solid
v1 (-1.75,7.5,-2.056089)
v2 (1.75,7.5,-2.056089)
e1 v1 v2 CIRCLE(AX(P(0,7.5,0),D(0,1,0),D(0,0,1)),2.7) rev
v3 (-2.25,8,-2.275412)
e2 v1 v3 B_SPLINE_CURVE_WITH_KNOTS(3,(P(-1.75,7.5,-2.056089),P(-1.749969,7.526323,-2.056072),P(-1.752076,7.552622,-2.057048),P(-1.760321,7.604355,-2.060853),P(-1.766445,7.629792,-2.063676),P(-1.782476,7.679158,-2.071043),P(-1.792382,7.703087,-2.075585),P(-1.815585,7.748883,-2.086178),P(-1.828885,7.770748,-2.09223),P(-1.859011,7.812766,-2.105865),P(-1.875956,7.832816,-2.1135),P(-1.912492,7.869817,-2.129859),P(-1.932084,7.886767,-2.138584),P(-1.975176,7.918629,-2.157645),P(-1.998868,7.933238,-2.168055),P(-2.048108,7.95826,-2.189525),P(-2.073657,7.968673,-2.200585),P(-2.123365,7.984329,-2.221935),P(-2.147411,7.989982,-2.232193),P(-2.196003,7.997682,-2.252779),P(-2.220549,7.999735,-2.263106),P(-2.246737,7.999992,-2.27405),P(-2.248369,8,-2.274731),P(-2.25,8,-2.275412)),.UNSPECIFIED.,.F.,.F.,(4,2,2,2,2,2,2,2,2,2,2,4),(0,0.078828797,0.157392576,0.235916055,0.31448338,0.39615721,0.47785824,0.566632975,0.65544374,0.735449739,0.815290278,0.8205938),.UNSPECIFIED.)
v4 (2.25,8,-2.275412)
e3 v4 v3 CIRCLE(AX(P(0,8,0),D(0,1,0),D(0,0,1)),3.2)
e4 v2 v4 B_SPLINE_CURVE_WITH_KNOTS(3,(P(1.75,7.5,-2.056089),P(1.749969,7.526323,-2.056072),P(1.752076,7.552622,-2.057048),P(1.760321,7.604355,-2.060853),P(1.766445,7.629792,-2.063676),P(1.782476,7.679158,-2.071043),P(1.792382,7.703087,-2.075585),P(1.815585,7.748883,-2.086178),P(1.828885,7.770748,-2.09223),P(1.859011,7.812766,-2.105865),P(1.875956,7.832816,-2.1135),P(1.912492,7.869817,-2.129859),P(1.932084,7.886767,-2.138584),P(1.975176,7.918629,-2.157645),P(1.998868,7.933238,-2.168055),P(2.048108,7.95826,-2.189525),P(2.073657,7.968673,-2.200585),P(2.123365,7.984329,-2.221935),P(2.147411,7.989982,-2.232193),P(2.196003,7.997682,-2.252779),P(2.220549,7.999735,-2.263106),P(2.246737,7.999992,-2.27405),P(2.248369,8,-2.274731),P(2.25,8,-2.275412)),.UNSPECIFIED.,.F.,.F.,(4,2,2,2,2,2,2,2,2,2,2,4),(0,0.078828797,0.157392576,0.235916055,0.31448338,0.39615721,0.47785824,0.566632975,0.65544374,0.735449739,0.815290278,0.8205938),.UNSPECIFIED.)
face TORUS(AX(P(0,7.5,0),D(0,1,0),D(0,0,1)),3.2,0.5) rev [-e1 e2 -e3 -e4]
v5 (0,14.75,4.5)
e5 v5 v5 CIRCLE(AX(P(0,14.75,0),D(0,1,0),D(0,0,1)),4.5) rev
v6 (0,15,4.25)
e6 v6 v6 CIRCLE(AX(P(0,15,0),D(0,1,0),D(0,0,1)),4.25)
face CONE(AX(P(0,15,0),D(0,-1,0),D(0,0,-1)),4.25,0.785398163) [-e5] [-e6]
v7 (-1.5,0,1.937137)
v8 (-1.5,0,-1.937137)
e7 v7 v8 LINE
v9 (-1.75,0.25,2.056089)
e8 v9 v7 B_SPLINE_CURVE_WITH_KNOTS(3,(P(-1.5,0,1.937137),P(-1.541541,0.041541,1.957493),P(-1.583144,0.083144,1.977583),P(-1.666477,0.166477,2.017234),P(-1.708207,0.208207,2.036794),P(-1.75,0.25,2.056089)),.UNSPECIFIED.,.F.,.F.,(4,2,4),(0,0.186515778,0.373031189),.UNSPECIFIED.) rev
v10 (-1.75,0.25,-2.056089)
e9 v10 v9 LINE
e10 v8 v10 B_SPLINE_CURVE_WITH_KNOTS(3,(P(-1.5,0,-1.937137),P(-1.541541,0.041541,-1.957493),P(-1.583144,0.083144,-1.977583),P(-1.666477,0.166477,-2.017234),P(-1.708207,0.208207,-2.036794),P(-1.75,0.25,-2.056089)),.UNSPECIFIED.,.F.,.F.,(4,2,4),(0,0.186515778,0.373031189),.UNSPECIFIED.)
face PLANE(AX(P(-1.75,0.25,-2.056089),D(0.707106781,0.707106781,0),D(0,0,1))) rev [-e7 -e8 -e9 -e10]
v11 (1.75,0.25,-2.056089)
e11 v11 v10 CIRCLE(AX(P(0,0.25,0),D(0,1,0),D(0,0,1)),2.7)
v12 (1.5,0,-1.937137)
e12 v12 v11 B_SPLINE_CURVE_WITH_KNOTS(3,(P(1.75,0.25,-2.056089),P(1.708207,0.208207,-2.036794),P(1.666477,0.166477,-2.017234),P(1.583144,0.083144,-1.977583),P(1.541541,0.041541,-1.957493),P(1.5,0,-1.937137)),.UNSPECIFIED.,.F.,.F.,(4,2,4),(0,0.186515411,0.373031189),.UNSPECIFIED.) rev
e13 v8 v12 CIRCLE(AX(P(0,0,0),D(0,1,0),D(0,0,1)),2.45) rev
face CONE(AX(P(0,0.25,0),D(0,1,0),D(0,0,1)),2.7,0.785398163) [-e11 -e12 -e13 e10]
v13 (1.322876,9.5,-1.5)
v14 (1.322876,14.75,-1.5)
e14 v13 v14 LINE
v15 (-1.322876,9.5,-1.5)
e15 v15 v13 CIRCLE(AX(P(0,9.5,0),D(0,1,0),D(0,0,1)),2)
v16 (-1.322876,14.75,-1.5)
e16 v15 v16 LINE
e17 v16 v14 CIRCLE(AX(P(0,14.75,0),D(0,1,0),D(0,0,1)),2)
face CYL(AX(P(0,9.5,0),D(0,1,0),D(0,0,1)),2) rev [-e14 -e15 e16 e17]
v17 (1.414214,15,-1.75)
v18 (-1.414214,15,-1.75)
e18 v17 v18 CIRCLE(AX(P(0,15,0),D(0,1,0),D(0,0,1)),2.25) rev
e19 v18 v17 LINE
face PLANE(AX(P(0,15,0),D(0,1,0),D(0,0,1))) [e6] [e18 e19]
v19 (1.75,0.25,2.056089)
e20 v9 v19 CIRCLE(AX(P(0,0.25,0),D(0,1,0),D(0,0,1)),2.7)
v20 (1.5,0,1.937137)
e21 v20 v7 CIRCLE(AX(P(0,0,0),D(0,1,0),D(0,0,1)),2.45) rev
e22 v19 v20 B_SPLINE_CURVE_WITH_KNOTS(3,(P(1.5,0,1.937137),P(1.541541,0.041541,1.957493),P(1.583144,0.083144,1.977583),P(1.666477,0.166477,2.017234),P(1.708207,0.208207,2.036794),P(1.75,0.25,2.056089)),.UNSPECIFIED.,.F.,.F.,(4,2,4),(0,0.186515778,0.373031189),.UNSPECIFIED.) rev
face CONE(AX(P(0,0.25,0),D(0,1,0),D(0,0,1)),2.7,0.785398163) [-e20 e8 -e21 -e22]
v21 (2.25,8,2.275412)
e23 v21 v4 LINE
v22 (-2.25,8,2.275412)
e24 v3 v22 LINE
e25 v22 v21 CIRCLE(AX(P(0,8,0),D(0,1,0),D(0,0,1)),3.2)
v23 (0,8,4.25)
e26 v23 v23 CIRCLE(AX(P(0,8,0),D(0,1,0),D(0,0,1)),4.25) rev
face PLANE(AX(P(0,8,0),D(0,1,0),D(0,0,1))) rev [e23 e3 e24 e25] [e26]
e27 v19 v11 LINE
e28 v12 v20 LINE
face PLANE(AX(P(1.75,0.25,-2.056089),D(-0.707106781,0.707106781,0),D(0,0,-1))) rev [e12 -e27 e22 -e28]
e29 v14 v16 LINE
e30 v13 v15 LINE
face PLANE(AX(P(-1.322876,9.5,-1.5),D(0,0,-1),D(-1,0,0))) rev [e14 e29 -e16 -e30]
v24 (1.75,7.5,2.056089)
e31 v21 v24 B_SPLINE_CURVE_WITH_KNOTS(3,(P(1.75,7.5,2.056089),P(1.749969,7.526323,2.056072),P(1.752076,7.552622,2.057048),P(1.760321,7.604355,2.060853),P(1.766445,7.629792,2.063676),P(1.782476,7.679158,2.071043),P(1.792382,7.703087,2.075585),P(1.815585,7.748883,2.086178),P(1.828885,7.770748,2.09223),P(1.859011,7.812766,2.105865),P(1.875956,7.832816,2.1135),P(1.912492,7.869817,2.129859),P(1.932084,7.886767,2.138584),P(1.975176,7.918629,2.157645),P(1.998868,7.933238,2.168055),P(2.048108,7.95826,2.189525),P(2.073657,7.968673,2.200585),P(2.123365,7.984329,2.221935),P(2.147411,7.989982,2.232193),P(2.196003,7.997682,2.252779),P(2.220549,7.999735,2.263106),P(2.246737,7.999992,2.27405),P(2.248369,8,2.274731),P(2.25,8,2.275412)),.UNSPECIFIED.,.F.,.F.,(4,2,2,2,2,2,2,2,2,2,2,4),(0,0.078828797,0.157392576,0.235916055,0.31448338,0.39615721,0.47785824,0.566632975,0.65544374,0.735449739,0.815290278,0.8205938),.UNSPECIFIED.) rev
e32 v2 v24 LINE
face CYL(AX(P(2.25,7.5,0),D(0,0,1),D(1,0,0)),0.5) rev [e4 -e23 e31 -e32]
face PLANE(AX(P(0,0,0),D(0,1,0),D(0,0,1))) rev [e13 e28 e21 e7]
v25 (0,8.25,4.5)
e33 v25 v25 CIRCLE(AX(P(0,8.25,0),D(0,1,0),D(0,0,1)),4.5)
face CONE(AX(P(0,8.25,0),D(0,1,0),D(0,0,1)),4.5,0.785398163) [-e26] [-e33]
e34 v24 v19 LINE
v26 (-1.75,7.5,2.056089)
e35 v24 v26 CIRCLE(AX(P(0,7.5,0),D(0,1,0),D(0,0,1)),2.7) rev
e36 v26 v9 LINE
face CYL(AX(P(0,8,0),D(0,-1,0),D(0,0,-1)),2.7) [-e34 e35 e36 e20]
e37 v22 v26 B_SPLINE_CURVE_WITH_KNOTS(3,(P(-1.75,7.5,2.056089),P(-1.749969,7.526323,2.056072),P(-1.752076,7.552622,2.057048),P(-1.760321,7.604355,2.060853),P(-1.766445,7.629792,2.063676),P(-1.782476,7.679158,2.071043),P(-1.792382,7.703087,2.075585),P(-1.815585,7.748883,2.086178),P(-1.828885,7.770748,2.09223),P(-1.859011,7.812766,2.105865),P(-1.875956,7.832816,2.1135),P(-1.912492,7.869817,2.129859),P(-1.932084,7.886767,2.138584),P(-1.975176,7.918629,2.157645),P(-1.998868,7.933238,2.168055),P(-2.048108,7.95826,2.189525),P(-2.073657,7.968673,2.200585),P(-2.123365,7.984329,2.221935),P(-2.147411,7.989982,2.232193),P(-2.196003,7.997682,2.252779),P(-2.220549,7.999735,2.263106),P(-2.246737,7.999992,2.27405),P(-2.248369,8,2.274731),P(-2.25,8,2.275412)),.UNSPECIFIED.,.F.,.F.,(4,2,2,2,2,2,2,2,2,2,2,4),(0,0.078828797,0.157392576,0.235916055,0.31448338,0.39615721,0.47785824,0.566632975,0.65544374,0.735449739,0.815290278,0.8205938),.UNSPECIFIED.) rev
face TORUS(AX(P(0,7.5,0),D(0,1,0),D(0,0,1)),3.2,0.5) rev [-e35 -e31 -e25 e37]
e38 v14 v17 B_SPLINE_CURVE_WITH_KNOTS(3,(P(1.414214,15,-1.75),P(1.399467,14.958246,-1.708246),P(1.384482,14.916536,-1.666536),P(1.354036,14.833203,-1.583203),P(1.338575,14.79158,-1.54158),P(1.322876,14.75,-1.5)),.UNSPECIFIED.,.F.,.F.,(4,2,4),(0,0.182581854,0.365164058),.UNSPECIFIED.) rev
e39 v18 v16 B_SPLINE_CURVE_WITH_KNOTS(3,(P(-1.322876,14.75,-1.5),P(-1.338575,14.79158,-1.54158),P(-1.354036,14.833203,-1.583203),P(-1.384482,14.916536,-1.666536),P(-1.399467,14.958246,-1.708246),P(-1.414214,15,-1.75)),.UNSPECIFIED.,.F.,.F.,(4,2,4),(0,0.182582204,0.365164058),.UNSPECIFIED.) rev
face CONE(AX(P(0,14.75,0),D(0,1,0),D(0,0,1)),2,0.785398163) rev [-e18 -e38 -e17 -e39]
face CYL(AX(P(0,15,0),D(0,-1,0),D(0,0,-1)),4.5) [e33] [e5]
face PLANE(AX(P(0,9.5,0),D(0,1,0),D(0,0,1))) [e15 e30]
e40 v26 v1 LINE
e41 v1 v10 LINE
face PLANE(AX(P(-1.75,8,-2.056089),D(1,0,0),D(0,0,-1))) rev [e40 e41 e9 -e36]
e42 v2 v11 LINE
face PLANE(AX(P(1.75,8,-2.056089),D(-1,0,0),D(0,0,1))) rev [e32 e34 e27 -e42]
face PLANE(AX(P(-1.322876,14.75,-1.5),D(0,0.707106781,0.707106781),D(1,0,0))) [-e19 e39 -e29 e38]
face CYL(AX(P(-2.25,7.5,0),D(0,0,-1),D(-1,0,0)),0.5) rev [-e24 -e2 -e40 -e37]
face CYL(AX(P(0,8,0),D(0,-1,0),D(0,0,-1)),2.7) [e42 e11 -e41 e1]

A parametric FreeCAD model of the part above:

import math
import FreeCAD as App
import Part
import Sketcher
from FreeCAD import Vector
Q = App.Units.Quantity


def edges_at(feature, points):
    """Names of the edges that pass closest to the given points."""
    edges = feature.Shape.Edges
    near = lambda p: min(range(len(edges)), key=lambda i: edges[i].distToShape(Part.Vertex(*p))[0])
    return sorted({f"Edge{near(p) + 1}" for p in points})

doc = App.newDocument("Part")
body = doc.addObject("PartDesign::Body", "Body")

# Sketch on XZ plane
sketch1 = body.newObject("Sketcher::SketchObject", "Sketch")
sketch1.AttachmentSupport = (doc.getObject("XZ_Plane"), [""])
sketch1.MapMode = "FlatFace"
sketch1.addGeometry([
    Part.LineSegment(Vector(-1.8, -2.1, 0), Vector(-1.8, 2.1, 0)),
    Part.ArcOfCircle(Part.Circle(Vector(0, 0, 0), Vector(0, 0, 1), 2.7), math.radians(50), math.radians(130)),
    Part.LineSegment(Vector(1.8, 2.1, 0), Vector(1.8, -2.1, 0)),
    Part.ArcOfCircle(Part.Circle(Vector(0, 0, 0), Vector(0, 0, 1), 2.7), math.radians(-130), math.radians(-50)),
], False)
sketch1.addConstraint([
    Sketcher.Constraint("Coincident", 0, 2, 1, 2),
    Sketcher.Constraint("Coincident", 1, 1, 2, 1),
    Sketcher.Constraint("Coincident", 2, 2, 3, 2),
    Sketcher.Constraint("Coincident", 3, 1, 0, 1),
    Sketcher.Constraint("Vertical", 0),
    Sketcher.Constraint("Vertical", 2),
    Sketcher.Constraint("Coincident", 1, 3, -1, 1),
    Sketcher.Constraint("Coincident", 3, 3, -1, 1),
    Sketcher.Constraint("Equal", 1, 3),
    Sketcher.Constraint("Horizontal", 0, 2, 1, 1),
    Sketcher.Constraint("Radius", 1, Q("2.7 mm")),
    Sketcher.Constraint("DistanceX", 0, 2, 1, 1, Q("3.5 mm")),
])
pad1 = body.newObject("PartDesign::Pad", "Pad")
pad1.Profile = sketch1
pad1.Length = 8
pad1.Reversed = True

# Sketch on XZ plane
sketch2 = body.newObject("Sketcher::SketchObject", "Sketch001")
sketch2.AttachmentSupport = (doc.getObject("XZ_Plane"), [""])
sketch2.MapMode = "FlatFace"
sketch2.AttachmentOffset = App.Placement(Vector(0, 0, -8), App.Rotation())
sketch2.addGeometry(Part.Circle(Vector(0, 0, 0), Vector(0, 0, 1), 4.5), False)
sketch2.addConstraint([
    Sketcher.Constraint("Coincident", 0, 3, -1, 1),
    Sketcher.Constraint("Diameter", 0, Q("9 mm")),
])
pad2 = body.newObject("PartDesign::Pad", "Pad001")
pad2.Profile = sketch2
pad2.Length = 7
pad2.Reversed = True

# Sketch on XZ plane
sketch3 = body.newObject("Sketcher::SketchObject", "Sketch002")
sketch3.AttachmentSupport = (doc.getObject("XZ_Plane"), [""])
sketch3.MapMode = "FlatFace"
sketch3.AttachmentOffset = App.Placement(Vector(0, 0, -15), App.Rotation())
sketch3.addGeometry([
    Part.LineSegment(Vector(1.3, -1.5, 0), Vector(-1.3, -1.5, 0)),
    Part.ArcOfCircle(Part.Circle(Vector(0, 0, 0), Vector(0, 0, 1), 2), math.radians(-49), math.radians(229)),
], False)
sketch3.addConstraint([
    Sketcher.Constraint("Coincident", 0, 1, 1, 1),
    Sketcher.Constraint("Coincident", 1, 2, 0, 2),
    Sketcher.Constraint("Horizontal", 0),
    Sketcher.Constraint("Coincident", 1, 3, -1, 1),
    Sketcher.Constraint("Radius", 1, Q("2 mm")),
    Sketcher.Constraint("DistanceY", 0, 1, -1, 1, Q("1.5 mm")),
])
pocket1 = body.newObject("PartDesign::Pocket", "Pocket")
pocket1.Profile = sketch3
pocket1.Length = 5.5
pocket1.Reversed = True
doc.recompute()

fillet = body.newObject("PartDesign::Fillet", "Fillet")
fillet.Base = (pocket1, edges_at(pocket1, [
    (0, 8, 2.7),
    (1.75, 8, 0),
    (0, 8, -2.7),
    (-1.75, 8, 0),
]))
fillet.Radius = 0.5
doc.recompute()

chamfer = body.newObject("PartDesign::Chamfer", "Chamfer")
chamfer.Base = (fillet, edges_at(fillet, [
    (-4.5, 8, 0),
    (-4.5, 15, 0),
    (0, 15, 2),
    (0, 15, -1.5),
    (1.75, 0, 0),
    (0, 0, 2.7),
    (-1.75, 0, 0),
    (0, 0, -2.7),
]))
chamfer.Size = 0.25

doc.recompute()
